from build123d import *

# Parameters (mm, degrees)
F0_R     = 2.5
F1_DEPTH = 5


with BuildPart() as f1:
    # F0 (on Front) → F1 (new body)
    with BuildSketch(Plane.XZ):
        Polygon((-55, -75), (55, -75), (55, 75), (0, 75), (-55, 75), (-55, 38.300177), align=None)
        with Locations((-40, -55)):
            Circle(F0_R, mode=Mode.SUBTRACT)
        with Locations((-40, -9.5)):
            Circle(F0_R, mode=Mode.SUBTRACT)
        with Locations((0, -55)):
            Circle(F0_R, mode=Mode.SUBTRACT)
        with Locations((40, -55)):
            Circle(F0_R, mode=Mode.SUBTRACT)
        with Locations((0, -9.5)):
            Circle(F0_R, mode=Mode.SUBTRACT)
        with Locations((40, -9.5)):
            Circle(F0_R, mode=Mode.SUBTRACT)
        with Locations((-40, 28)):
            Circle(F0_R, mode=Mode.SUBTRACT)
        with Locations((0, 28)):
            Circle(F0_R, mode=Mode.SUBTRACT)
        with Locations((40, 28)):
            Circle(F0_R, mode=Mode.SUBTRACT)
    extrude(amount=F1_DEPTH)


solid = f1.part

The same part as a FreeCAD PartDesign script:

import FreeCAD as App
import Part
import Sketcher
from FreeCAD import Vector


def add_polygon(sketch, points):
    """Adds a closed chain of lines whose ends are joined by coincident constraints."""
    first, n = sketch.GeometryCount, len(points)
    for a, b in zip(points, points[1:] + points[:1]):
        sketch.addGeometry(Part.LineSegment(App.Vector(*a, 0), App.Vector(*b, 0)), False)
    for i in range(n):
        sketch.addConstraint(Sketcher.Constraint("Coincident", first + i, 2, first + (i + 1) % n, 1))

doc = App.newDocument("Part")
body = doc.addObject("PartDesign::Body", "Body")

# Sketch on XZ plane
sketch1 = body.newObject("Sketcher::SketchObject", "Sketch")
sketch1.AttachmentSupport = (doc.getObject("XZ_Plane"), [""])
sketch1.MapMode = "FlatFace"
add_polygon(sketch1, [(-55, -75), (55, -75), (55, 75), (-55, 75)])  # lines 0-3
sketch1.addGeometry(Part.Circle(Vector(-40, -55, 0), Vector(0, 0, 1), 2.5), False)  # 4
sketch1.addGeometry(Part.Circle(Vector(0, -55, 0), Vector(0, 0, 1), 2.5), False)  # 5
sketch1.addGeometry(Part.Circle(Vector(40, -55, 0), Vector(0, 0, 1), 2.5), False)  # 6
sketch1.addGeometry(Part.Circle(Vector(-40, -9.5, 0), Vector(0, 0, 1), 2.5), False)  # 7
sketch1.addGeometry(Part.Circle(Vector(-40, 28, 0), Vector(0, 0, 1), 2.5), False)  # 8
sketch1.addGeometry(Part.Circle(Vector(0, -9.5, 0), Vector(0, 0, 1), 2.5), False)  # 9
sketch1.addGeometry(Part.Circle(Vector(40, -9.5, 0), Vector(0, 0, 1), 2.5), False)  # 10
sketch1.addGeometry(Part.Circle(Vector(0, 28, 0), Vector(0, 0, 1), 2.5), False)  # 11
sketch1.addGeometry(Part.Circle(Vector(40, 28, 0), Vector(0, 0, 1), 2.5), False)  # 12
sketch1.addConstraint([
    Sketcher.Constraint("Horizontal", 0),
    Sketcher.Constraint("Vertical", 1),
    Sketcher.Constraint("Horizontal", 2),
    Sketcher.Constraint("Vertical", 3),
    Sketcher.Constraint("Equal", 4, 5),
    Sketcher.Constraint("Equal", 5, 6),
    Sketcher.Constraint("Equal", 6, 7),
    Sketcher.Constraint("Equal", 7, 8),
    Sketcher.Constraint("Equal", 8, 9),
    Sketcher.Constraint("Equal", 9, 10),
    Sketcher.Constraint("Equal", 10, 11),
    Sketcher.Constraint("Equal", 11, 12),
    Sketcher.Constraint("Symmetric", 0, 2, 2, 2, -1, 1),
    Sketcher.Constraint("Symmetric", 4, 3, 6, 3, -2),
    Sketcher.Constraint("Symmetric", 7, 3, 10, 3, -2),
    Sketcher.Constraint("Symmetric", 8, 3, 12, 3, -2),
    Sketcher.Constraint("PointOnObject", 5, 3, -2),
    Sketcher.Constraint("PointOnObject", 9, 3, -2),
    Sketcher.Constraint("PointOnObject", 11, 3, -2),
    Sketcher.Constraint("Horizontal", 4, 3, 5, 3),
    Sketcher.Constraint("Horizontal", 7, 3, 9, 3),
    Sketcher.Constraint("Horizontal", 8, 3, 11, 3),
    Sketcher.Constraint("Vertical", 4, 3, 7, 3),
    Sketcher.Constraint("Vertical", 7, 3, 8, 3),
    Sketcher.Constraint("Diameter", 4, 5.0),
    Sketcher.Constraint("DistanceX", 0, 1, 0, 2, 110.0),
    Sketcher.Constraint("DistanceY", 1, 1, 1, 2, 150.0),
    Sketcher.Constraint("DistanceX", 4, 3, -1, 1, 40.0),
    Sketcher.Constraint("DistanceY", 4, 3, -1, 1, 55.0),
    Sketcher.Constraint("DistanceY", -1, 1, 8, 3, 28.0),
    Sketcher.Constraint("DistanceY", 7, 3, -1, 1, 9.5),
])
pad1 = body.newObject("PartDesign::Pad", "Pad")
pad1.Profile = sketch1
pad1.Length = 5

doc.recompute()
